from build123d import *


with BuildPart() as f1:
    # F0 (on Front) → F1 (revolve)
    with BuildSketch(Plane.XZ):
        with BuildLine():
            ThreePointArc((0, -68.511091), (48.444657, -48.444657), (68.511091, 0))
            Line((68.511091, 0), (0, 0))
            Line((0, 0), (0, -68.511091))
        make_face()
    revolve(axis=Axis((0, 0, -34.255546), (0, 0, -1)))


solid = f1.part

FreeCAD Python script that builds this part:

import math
import FreeCAD as App
import Part
import Sketcher
from FreeCAD import Vector

doc = App.newDocument("Part")
body = doc.addObject("PartDesign::Body", "Body")

# Sketch on XZ plane
sketch1 = body.newObject("Sketcher::SketchObject", "Sketch")
sketch1.AttachmentSupport = (doc.getObject("XZ_Plane"), [""])
sketch1.MapMode = "FlatFace"
sketch1.addGeometry(Part.ArcOfCircle(Part.Circle(Vector(0, 0, 0), Vector(0, 0, 1), 69), math.radians(-90), math.radians(0)), False)
sketch1.addGeometry(Part.LineSegment(Vector(69, 0, 0), Vector(0, 0, 0)), False)
sketch1.addGeometry(Part.LineSegment(Vector(0, 0, 0), Vector(0, -69, 0)), False)
sketch1.addConstraint(Sketcher.Constraint("Coincident", 0, 2, 1, 1))
sketch1.addConstraint(Sketcher.Constraint("Coincident", 1, 2, 2, 1))
sketch1.addConstraint(Sketcher.Constraint("Coincident", 2, 2, 0, 1))
sketch1.addConstraint(Sketcher.Constraint("Horizontal", 1))
sketch1.addConstraint(Sketcher.Constraint("Vertical", 2))
sketch1.addConstraint(Sketcher.Constraint("Coincident", 0, 3, -1, 1))
sketch1.addConstraint(Sketcher.Constraint("Coincident", 1, 2, -1, 1))
sketch1.addConstraint(Sketcher.Constraint("Radius", 0, 68.511091))
revolution = body.newObject("PartDesign::Revolution", "Revolution")
revolution.Profile = sketch1
revolution.ReferenceAxis = (sketch1, ["V_Axis"])
revolution.Angle = 360

doc.recompute()
